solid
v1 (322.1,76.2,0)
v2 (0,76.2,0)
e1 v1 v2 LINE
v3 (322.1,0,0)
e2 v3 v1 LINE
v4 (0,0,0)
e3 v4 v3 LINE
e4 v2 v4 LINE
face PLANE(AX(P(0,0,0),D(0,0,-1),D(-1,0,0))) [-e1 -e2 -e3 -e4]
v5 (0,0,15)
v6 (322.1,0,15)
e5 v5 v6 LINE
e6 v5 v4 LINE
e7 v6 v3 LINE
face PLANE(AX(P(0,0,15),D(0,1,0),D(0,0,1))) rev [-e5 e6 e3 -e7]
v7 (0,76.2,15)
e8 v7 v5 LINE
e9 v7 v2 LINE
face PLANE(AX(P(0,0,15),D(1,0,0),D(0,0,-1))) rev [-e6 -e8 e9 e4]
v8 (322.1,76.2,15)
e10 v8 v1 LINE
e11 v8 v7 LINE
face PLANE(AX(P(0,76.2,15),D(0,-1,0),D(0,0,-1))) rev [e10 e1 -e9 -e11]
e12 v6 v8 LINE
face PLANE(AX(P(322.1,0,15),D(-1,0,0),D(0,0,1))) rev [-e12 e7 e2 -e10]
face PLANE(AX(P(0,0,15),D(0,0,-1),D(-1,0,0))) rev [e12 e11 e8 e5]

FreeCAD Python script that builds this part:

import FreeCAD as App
import Part
import Sketcher
Q = App.Units.Quantity

doc = App.newDocument("Part")
body = doc.addObject("PartDesign::Body", "Body")

# Sketch on XY plane
sketch1 = doc.addObject("Sketcher::SketchObject", "Sketch")
body.addObject(sketch1)
sketch1.AttachmentSupport = (doc.XY_Plane, [""])
sketch1.MapMode = "FlatFace"
sketch1.addGeometry(Part.LineSegment(App.Vector(0, 76, 0), App.Vector(0, 0, 0)), False)
sketch1.addGeometry(Part.LineSegment(App.Vector(0, 0, 0), App.Vector(322, 0, 0)), False)
sketch1.addGeometry(Part.LineSegment(App.Vector(322, 0, 0), App.Vector(322, 76, 0)), False)
sketch1.addGeometry(Part.LineSegment(App.Vector(322, 76, 0), App.Vector(0, 76, 0)), False)
sketch1.addConstraint(Sketcher.Constraint("Coincident", 0, 2, 1, 1))
sketch1.addConstraint(Sketcher.Constraint("Coincident", 1, 2, 2, 1))
sketch1.addConstraint(Sketcher.Constraint("Coincident", 2, 2, 3, 1))
sketch1.addConstraint(Sketcher.Constraint("Coincident", 3, 2, 0, 1))
sketch1.addConstraint(Sketcher.Constraint("Vertical", 0))
sketch1.addConstraint(Sketcher.Constraint("Horizontal", 1))
sketch1.addConstraint(Sketcher.Constraint("Vertical", 2))
sketch1.addConstraint(Sketcher.Constraint("Horizontal", 3))
sketch1.addConstraint(Sketcher.Constraint("Coincident", 0, 2, -1, 1))
sketch1.addConstraint(Sketcher.Constraint("DistanceX", 1, 1, 1, 2, Q("322.1 mm")))
sketch1.addConstraint(Sketcher.Constraint("DistanceY", 0, 2, 0, 1, Q("76.2 mm")))
pad1 = doc.addObject("PartDesign::Pad", "Pad")
body.addObject(pad1)
pad1.Profile = sketch1
pad1.Length = 15

doc.recompute()
